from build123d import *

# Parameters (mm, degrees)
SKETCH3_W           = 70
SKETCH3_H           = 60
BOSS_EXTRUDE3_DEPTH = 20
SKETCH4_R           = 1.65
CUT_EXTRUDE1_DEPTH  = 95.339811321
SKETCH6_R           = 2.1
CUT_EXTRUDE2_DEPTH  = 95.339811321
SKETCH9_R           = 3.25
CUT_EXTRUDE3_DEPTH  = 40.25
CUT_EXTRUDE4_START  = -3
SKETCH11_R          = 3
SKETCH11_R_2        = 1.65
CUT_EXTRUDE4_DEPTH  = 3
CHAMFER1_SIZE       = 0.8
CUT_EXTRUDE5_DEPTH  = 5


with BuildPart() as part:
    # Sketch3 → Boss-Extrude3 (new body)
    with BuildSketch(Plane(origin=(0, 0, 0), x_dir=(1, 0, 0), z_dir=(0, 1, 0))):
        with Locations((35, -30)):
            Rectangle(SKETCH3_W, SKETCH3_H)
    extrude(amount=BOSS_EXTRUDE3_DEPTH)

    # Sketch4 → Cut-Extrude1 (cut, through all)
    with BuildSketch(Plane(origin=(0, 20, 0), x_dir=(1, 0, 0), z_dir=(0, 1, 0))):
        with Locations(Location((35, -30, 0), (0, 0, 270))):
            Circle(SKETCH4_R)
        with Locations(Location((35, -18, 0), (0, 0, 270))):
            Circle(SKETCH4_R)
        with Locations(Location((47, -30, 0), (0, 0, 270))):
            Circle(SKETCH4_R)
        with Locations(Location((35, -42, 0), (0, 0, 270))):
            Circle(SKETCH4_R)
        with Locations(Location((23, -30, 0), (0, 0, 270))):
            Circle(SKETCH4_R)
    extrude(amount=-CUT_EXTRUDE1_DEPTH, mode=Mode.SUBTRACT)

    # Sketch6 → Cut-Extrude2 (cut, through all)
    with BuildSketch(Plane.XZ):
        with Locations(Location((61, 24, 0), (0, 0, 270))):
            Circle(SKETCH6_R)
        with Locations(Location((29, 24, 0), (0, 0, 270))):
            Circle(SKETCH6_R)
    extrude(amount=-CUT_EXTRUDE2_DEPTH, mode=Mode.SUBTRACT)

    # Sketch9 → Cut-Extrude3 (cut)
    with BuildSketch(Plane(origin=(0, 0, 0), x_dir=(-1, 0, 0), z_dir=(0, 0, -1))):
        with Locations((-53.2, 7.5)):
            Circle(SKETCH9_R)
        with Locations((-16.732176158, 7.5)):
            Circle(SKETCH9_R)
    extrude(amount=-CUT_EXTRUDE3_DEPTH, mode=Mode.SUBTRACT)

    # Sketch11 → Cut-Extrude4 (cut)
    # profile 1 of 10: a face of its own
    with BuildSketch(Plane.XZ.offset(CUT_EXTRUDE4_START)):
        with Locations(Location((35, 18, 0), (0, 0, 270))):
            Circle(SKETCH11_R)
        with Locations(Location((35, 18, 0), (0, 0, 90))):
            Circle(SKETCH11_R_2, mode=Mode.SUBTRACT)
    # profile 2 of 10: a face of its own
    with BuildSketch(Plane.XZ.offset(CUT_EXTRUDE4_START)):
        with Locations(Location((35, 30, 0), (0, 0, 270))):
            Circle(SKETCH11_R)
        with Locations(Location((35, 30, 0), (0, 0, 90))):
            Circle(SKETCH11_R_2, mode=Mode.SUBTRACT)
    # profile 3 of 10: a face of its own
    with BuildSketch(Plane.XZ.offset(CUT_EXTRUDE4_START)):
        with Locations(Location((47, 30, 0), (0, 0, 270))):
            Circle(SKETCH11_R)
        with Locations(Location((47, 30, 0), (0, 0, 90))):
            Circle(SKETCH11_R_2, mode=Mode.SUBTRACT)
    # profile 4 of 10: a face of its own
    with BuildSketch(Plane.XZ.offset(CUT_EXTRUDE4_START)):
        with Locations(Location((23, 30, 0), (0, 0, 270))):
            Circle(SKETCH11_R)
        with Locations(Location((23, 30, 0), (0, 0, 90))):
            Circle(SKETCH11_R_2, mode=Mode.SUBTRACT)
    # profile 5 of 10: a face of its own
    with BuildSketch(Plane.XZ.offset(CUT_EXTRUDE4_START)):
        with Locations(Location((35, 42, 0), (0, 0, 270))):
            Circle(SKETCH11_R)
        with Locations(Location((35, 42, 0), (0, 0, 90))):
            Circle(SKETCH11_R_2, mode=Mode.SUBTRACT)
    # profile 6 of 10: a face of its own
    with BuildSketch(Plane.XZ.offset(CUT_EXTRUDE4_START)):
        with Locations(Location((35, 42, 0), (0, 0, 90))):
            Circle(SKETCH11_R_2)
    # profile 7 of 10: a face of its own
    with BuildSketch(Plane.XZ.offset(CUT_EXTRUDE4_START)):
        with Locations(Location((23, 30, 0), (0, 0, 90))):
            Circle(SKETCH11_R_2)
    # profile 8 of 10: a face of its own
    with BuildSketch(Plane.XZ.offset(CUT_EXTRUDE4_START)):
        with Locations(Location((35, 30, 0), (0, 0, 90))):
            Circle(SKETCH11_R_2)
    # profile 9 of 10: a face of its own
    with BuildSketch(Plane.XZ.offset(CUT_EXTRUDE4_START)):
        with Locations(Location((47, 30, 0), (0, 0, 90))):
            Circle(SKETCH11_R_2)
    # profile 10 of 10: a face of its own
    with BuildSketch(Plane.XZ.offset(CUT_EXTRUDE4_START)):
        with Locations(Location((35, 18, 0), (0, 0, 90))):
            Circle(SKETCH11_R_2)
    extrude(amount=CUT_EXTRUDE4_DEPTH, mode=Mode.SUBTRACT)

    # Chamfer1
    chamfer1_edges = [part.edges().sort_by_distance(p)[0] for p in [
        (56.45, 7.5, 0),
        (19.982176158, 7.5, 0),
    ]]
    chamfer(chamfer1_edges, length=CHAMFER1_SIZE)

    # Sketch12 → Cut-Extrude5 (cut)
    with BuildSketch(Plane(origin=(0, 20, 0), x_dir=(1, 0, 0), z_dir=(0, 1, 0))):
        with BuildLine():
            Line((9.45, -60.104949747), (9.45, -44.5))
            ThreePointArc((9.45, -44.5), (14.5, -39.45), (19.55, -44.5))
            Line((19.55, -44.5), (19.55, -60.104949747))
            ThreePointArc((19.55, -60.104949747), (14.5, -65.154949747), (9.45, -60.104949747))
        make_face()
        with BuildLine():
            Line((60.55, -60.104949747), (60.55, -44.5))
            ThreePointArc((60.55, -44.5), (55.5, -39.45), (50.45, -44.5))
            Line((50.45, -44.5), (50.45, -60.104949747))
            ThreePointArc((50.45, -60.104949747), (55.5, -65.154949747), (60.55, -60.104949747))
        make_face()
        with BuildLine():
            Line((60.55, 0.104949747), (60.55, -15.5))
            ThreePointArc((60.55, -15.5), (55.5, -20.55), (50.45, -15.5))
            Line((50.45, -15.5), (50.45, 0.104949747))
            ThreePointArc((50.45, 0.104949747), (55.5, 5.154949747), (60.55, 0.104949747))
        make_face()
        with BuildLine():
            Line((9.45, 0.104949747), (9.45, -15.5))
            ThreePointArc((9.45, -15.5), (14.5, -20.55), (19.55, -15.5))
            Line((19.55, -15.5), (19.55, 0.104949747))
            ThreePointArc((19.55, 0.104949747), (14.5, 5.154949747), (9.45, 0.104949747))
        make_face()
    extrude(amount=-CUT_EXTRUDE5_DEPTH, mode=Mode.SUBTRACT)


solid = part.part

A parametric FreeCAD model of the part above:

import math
import FreeCAD as App
import Part
import Sketcher
Q = App.Units.Quantity


def edges_at(feature, points):
    """Names of the edges that pass closest to the given points."""
    edges = feature.Shape.Edges
    near = lambda p: min(range(len(edges)), key=lambda i: edges[i].distToShape(Part.Vertex(*p))[0])
    return sorted({f"Edge{near(p) + 1}" for p in points})


def add_polygon(sketch, points):
    """Adds a closed chain of lines whose ends are joined by coincident constraints."""
    first, n = sketch.GeometryCount, len(points)
    for a, b in zip(points, points[1:] + points[:1]):
        sketch.addGeometry(Part.LineSegment(App.Vector(*a, 0), App.Vector(*b, 0)), False)
    for i in range(n):
        sketch.addConstraint(Sketcher.Constraint("Coincident", first + i, 2, first + (i + 1) % n, 1))

doc = App.newDocument("Part")
body = doc.addObject("PartDesign::Body", "Body")

# Sketch on XZ plane
sketch1 = body.newObject("Sketcher::SketchObject", "Sketch")
sketch1.AttachmentSupport = (doc.getObject("XZ_Plane"), [""])
sketch1.MapMode = "FlatFace"
add_polygon(sketch1, [(0, 0), (0, 60), (70, 60), (70, 0)])  # lines 0-3
sketch1.addConstraint(Sketcher.Constraint("Vertical", 0))
sketch1.addConstraint(Sketcher.Constraint("Horizontal", 1))
sketch1.addConstraint(Sketcher.Constraint("Vertical", 2))
sketch1.addConstraint(Sketcher.Constraint("Horizontal", 3))
sketch1.addConstraint(Sketcher.Constraint("Coincident", 3, 2, -1, 1))
sketch1.addConstraint(Sketcher.Constraint("DistanceX", 1, 1, 1, 2, Q("70 mm")))
sketch1.addConstraint(Sketcher.Constraint("DistanceY", 0, 1, 0, 2, Q("60 mm")))
pad1 = body.newObject("PartDesign::Pad", "Pad")
pad1.Profile = sketch1
pad1.Length = 20
pad1.Reversed = True

# Sketch on XZ plane
sketch2 = body.newObject("Sketcher::SketchObject", "Sketch001")
sketch2.AttachmentSupport = (doc.getObject("XZ_Plane"), [""])
sketch2.MapMode = "FlatFace"
sketch2.AttachmentOffset = App.Placement(App.Vector(0, 0, -20), App.Rotation())
sketch2.addGeometry(Part.Circle(App.Vector(35, 30, 0), App.Vector(0, 0, 1), 1.6), False)
sketch2.addGeometry(Part.Circle(App.Vector(35, 18, 0), App.Vector(0, 0, 1), 1.6), False)
sketch2.addGeometry(Part.Circle(App.Vector(47, 30, 0), App.Vector(0, 0, 1), 1.6), False)
sketch2.addGeometry(Part.Circle(App.Vector(35, 42, 0), App.Vector(0, 0, 1), 1.6), False)
sketch2.addGeometry(Part.Circle(App.Vector(23, 30, 0), App.Vector(0, 0, 1), 1.6), False)
sketch2.addConstraint(Sketcher.Constraint("Equal", 0, 1))
sketch2.addConstraint(Sketcher.Constraint("Equal", 1, 2))
sketch2.addConstraint(Sketcher.Constraint("Equal", 2, 3))
sketch2.addConstraint(Sketcher.Constraint("Equal", 3, 4))
sketch2.addConstraint(Sketcher.Constraint("Horizontal", 0, 3, 2, 3))
sketch2.addConstraint(Sketcher.Constraint("Horizontal", 2, 3, 4, 3))
sketch2.addConstraint(Sketcher.Constraint("Vertical", 0, 3, 1, 3))
sketch2.addConstraint(Sketcher.Constraint("Vertical", 1, 3, 3, 3))
sketch2.addConstraint(Sketcher.Constraint("Diameter", 0, Q("3.3 mm")))
sketch2.addConstraint(Sketcher.Constraint("DistanceX", -1, 1, 0, 3, Q("35 mm")))
sketch2.addConstraint(Sketcher.Constraint("DistanceY", -1, 1, 0, 3, Q("30 mm")))
sketch2.addConstraint(Sketcher.Constraint("DistanceY", -1, 1, 1, 3, Q("18 mm")))
sketch2.addConstraint(Sketcher.Constraint("DistanceX", -1, 1, 2, 3, Q("47 mm")))
sketch2.addConstraint(Sketcher.Constraint("DistanceY", -1, 1, 3, 3, Q("42 mm")))
sketch2.addConstraint(Sketcher.Constraint("DistanceX", -1, 1, 4, 3, Q("23 mm")))
pocket1 = body.newObject("PartDesign::Pocket", "Pocket")
pocket1.Profile = sketch2
pocket1.Type = "ThroughAll"
pocket1.Reversed = True

# Sketch on XZ plane
sketch3 = body.newObject("Sketcher::SketchObject", "Sketch002")
sketch3.AttachmentSupport = (doc.getObject("XZ_Plane"), [""])
sketch3.MapMode = "FlatFace"
sketch3.addGeometry(Part.Circle(App.Vector(61, 24, 0), App.Vector(0, 0, 1), 2.1), False)
sketch3.addGeometry(Part.Circle(App.Vector(29, 24, 0), App.Vector(0, 0, 1), 2.1), False)
sketch3.addConstraint(Sketcher.Constraint("Equal", 0, 1))
sketch3.addConstraint(Sketcher.Constraint("Horizontal", 0, 3, 1, 3))
sketch3.addConstraint(Sketcher.Constraint("Diameter", 0, Q("4.2 mm")))
sketch3.addConstraint(Sketcher.Constraint("DistanceX", -1, 1, 0, 3, Q("61 mm")))
sketch3.addConstraint(Sketcher.Constraint("DistanceY", -1, 1, 0, 3, Q("24 mm")))
sketch3.addConstraint(Sketcher.Constraint("DistanceX", -1, 1, 1, 3, Q("29 mm")))
pocket2 = body.newObject("PartDesign::Pocket", "Pocket001")
pocket2.Profile = sketch3
pocket2.Type = "ThroughAll"

# Sketch on XY plane
sketch4 = body.newObject("Sketcher::SketchObject", "Sketch003")
sketch4.AttachmentSupport = (doc.getObject("XY_Plane"), [""])
sketch4.MapMode = "FlatFace"
sketch4.addGeometry(Part.Circle(App.Vector(53.2, 7.5, 0), App.Vector(0, 0, 1), 3.2), False)
sketch4.addGeometry(Part.Circle(App.Vector(16.7, 7.5, 0), App.Vector(0, 0, 1), 3.2), False)
sketch4.addConstraint(Sketcher.Constraint("Equal", 0, 1))
sketch4.addConstraint(Sketcher.Constraint("Horizontal", 0, 3, 1, 3))
sketch4.addConstraint(Sketcher.Constraint("Diameter", 0, Q("6.5 mm")))
sketch4.addConstraint(Sketcher.Constraint("DistanceX", -1, 1, 0, 3, Q("53.2 mm")))
sketch4.addConstraint(Sketcher.Constraint("DistanceY", -1, 1, 0, 3, Q("7.5 mm")))
sketch4.addConstraint(Sketcher.Constraint("DistanceX", -1, 1, 1, 3, Q("16.732176 mm")))
pocket3 = body.newObject("PartDesign::Pocket", "Pocket002")
pocket3.Profile = sketch4
pocket3.Length = 40.25
pocket3.Reversed = True

# Sketch on XZ plane
sketch5 = body.newObject("Sketcher::SketchObject", "Sketch004")
sketch5.AttachmentSupport = (doc.getObject("XZ_Plane"), [""])
sketch5.MapMode = "FlatFace"
sketch5.AttachmentOffset = App.Placement(App.Vector(0, 0, -3), App.Rotation())
sketch5.addGeometry(Part.Circle(App.Vector(35, 18, 0), App.Vector(0, 0, 1), 3), False)
sketch5.addGeometry(Part.Circle(App.Vector(35, 30, 0), App.Vector(0, 0, 1), 3), False)
sketch5.addGeometry(Part.Circle(App.Vector(47, 30, 0), App.Vector(0, 0, 1), 3), False)
sketch5.addGeometry(Part.Circle(App.Vector(23, 30, 0), App.Vector(0, 0, 1), 3), False)
sketch5.addGeometry(Part.Circle(App.Vector(35, 42, 0), App.Vector(0, 0, 1), 3), False)
sketch5.addConstraint(Sketcher.Constraint("Equal", 0, 1))
sketch5.addConstraint(Sketcher.Constraint("Equal", 1, 2))
sketch5.addConstraint(Sketcher.Constraint("Equal", 2, 3))
sketch5.addConstraint(Sketcher.Constraint("Equal", 3, 4))
sketch5.addConstraint(Sketcher.Constraint("Horizontal", 1, 3, 2, 3))
sketch5.addConstraint(Sketcher.Constraint("Horizontal", 2, 3, 3, 3))
sketch5.addConstraint(Sketcher.Constraint("Vertical", 0, 3, 1, 3))
sketch5.addConstraint(Sketcher.Constraint("Vertical", 1, 3, 4, 3))
sketch5.addConstraint(Sketcher.Constraint("Diameter", 0, Q("6 mm")))
sketch5.addConstraint(Sketcher.Constraint("DistanceX", -1, 1, 0, 3, Q("35 mm")))
sketch5.addConstraint(Sketcher.Constraint("DistanceY", -1, 1, 0, 3, Q("18 mm")))
sketch5.addConstraint(Sketcher.Constraint("DistanceY", -1, 1, 1, 3, Q("30 mm")))
sketch5.addConstraint(Sketcher.Constraint("DistanceX", -1, 1, 2, 3, Q("47 mm")))
sketch5.addConstraint(Sketcher.Constraint("DistanceX", -1, 1, 3, 3, Q("23 mm")))
sketch5.addConstraint(Sketcher.Constraint("DistanceY", -1, 1, 4, 3, Q("42 mm")))
pocket4 = body.newObject("PartDesign::Pocket", "Pocket003")
pocket4.Profile = sketch5
pocket4.Length = 3
pocket4.Reversed = True
doc.recompute()

chamfer = body.newObject("PartDesign::Chamfer", "Chamfer")
chamfer.Base = (pocket4, edges_at(pocket4, [(56.45, 7.5, 0), (19.982, 7.5, 0)]))
chamfer.Size = 0.8

# Sketch on XZ plane
sketch6 = body.newObject("Sketcher::SketchObject", "Sketch005")
sketch6.AttachmentSupport = (doc.getObject("XZ_Plane"), [""])
sketch6.MapMode = "FlatFace"
sketch6.AttachmentOffset = App.Placement(App.Vector(0, 0, -20), App.Rotation())
sketch6.addGeometry(Part.LineSegment(App.Vector(9, 44, 0), App.Vector(9, 60, 0)), False)
sketch6.addGeometry(Part.ArcOfCircle(Part.Circle(App.Vector(14, 60, 0), App.Vector(0, 0, 1), 5), math.radians(0), math.radians(180)), False)
sketch6.addGeometry(Part.LineSegment(App.Vector(20, 60, 0), App.Vector(20, 44, 0)), False)
sketch6.addGeometry(Part.ArcOfCircle(Part.Circle(App.Vector(14, 44, 0), App.Vector(0, 0, 1), 5), math.radians(180), math.radians(360)), False)
sketch6.addGeometry(Part.LineSegment(App.Vector(61, 60, 0), App.Vector(61, 44, 0)), False)
sketch6.addGeometry(Part.ArcOfCircle(Part.Circle(App.Vector(56, 44, 0), App.Vector(0, 0, 1), 5), math.radians(180), math.radians(360)), False)
sketch6.addGeometry(Part.LineSegment(App.Vector(50, 44, 0), App.Vector(50, 60, 0)), False)
sketch6.addGeometry(Part.ArcOfCircle(Part.Circle(App.Vector(56, 60, 0), App.Vector(0, 0, 1), 5), math.radians(0), math.radians(180)), False)
sketch6.addGeometry(Part.LineSegment(App.Vector(61, 16, 0), App.Vector(61, 0, 0)), False)
sketch6.addGeometry(Part.ArcOfCircle(Part.Circle(App.Vector(56, 0, 0), App.Vector(0, 0, 1), 5), math.radians(180), math.radians(360)), False)
sketch6.addGeometry(Part.LineSegment(App.Vector(50, 0, 0), App.Vector(50, 16, 0)), False)
sketch6.addGeometry(Part.ArcOfCircle(Part.Circle(App.Vector(56, 16, 0), App.Vector(0, 0, 1), 5), math.radians(0), math.radians(180)), False)
sketch6.addGeometry(Part.LineSegment(App.Vector(9, 0, 0), App.Vector(9, 16, 0)), False)
sketch6.addGeometry(Part.ArcOfCircle(Part.Circle(App.Vector(14, 16, 0), App.Vector(0, 0, 1), 5), math.radians(0), math.radians(180)), False)
sketch6.addGeometry(Part.LineSegment(App.Vector(20, 16, 0), App.Vector(20, 0, 0)), False)
sketch6.addGeometry(Part.ArcOfCircle(Part.Circle(App.Vector(14, 0, 0), App.Vector(0, 0, 1), 5), math.radians(180), math.radians(360)), False)
sketch6.addConstraint(Sketcher.Constraint("Tangent", 0, 2, 1, 2))
sketch6.addConstraint(Sketcher.Constraint("Tangent", 1, 1, 2, 1))
sketch6.addConstraint(Sketcher.Constraint("Tangent", 2, 2, 3, 2))
sketch6.addConstraint(Sketcher.Constraint("Tangent", 3, 1, 0, 1))
sketch6.addConstraint(Sketcher.Constraint("Tangent", 4, 2, 5, 2))
sketch6.addConstraint(Sketcher.Constraint("Tangent", 5, 1, 6, 1))
sketch6.addConstraint(Sketcher.Constraint("Tangent", 6, 2, 7, 2))
sketch6.addConstraint(Sketcher.Constraint("Tangent", 7, 1, 4, 1))
sketch6.addConstraint(Sketcher.Constraint("Tangent", 8, 2, 9, 2))
sketch6.addConstraint(Sketcher.Constraint("Tangent", 9, 1, 10, 1))
sketch6.addConstraint(Sketcher.Constraint("Tangent", 10, 2, 11, 2))
sketch6.addConstraint(Sketcher.Constraint("Tangent", 11, 1, 8, 1))
sketch6.addConstraint(Sketcher.Constraint("Tangent", 12, 2, 13, 2))
sketch6.addConstraint(Sketcher.Constraint("Tangent", 13, 1, 14, 1))
sketch6.addConstraint(Sketcher.Constraint("Tangent", 14, 2, 15, 2))
sketch6.addConstraint(Sketcher.Constraint("Tangent", 15, 1, 12, 1))
sketch6.addConstraint(Sketcher.Constraint("Vertical", 0))
sketch6.addConstraint(Sketcher.Constraint("Vertical", 2))
sketch6.addConstraint(Sketcher.Constraint("Vertical", 4))
sketch6.addConstraint(Sketcher.Constraint("Vertical", 6))
sketch6.addConstraint(Sketcher.Constraint("Vertical", 8))
sketch6.addConstraint(Sketcher.Constraint("Vertical", 10))
sketch6.addConstraint(Sketcher.Constraint("Vertical", 12))
sketch6.addConstraint(Sketcher.Constraint("Vertical", 14))
sketch6.addConstraint(Sketcher.Constraint("Equal", 3, 5))
sketch6.addConstraint(Sketcher.Constraint("Equal", 7, 9))
sketch6.addConstraint(Sketcher.Constraint("Equal", 11, 13))
sketch6.addConstraint(Sketcher.Constraint("Horizontal", 3, 3, 5, 3))
sketch6.addConstraint(Sketcher.Constraint("Horizontal", 1, 3, 7, 3))
sketch6.addConstraint(Sketcher.Constraint("Horizontal", 11, 3, 13, 3))
sketch6.addConstraint(Sketcher.Constraint("Horizontal", 9, 3, 15, 3))
sketch6.addConstraint(Sketcher.Constraint("Vertical", 7, 3, 9, 3))
sketch6.addConstraint(Sketcher.Constraint("Vertical", 3, 3, 13, 3))
sketch6.addConstraint(Sketcher.Constraint("Equal", 6, 8))
sketch6.addConstraint(Sketcher.Constraint("Radius", 1, Q("5.05 mm")))
sketch6.addConstraint(Sketcher.Constraint("DistanceX", 3, 3, 5, 3, Q("41 mm")))
sketch6.addConstraint(Sketcher.Constraint("DistanceY", 11, 3, 5, 3, Q("29 mm")))
sketch6.addConstraint(Sketcher.Constraint("DistanceX", -1, 1, 1, 3, Q("14.5 mm")))
sketch6.addConstraint(Sketcher.Constraint("DistanceY", -1, 1, 3, 3, Q("44.5 mm")))
sketch6.addConstraint(Sketcher.Constraint("DistanceY", 0, 1, 0, 2, Q("15.60495 mm")))
pocket5 = body.newObject("PartDesign::Pocket", "Pocket004")
pocket5.Profile = sketch6
pocket5.Length = 5
pocket5.Reversed = True

doc.recompute()
